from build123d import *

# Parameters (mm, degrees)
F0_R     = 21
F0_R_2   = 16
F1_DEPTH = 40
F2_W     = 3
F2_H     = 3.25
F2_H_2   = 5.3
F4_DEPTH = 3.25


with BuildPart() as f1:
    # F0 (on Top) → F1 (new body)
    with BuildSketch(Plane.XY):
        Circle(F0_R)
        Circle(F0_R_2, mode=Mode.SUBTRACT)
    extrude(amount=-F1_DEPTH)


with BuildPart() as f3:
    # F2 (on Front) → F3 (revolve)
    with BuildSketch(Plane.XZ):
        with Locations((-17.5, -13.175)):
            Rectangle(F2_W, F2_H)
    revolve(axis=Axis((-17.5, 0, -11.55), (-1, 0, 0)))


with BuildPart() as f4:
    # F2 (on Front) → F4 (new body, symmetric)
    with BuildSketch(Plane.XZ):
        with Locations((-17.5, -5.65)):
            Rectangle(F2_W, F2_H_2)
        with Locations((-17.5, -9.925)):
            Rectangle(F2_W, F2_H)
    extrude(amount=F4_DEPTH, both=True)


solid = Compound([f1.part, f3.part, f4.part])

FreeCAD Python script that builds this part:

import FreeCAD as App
import Part
import Sketcher
from FreeCAD import Vector
Q = App.Units.Quantity


def add_polygon(sketch, points):
    """Adds a closed chain of lines whose ends are joined by coincident constraints."""
    first, n = sketch.GeometryCount, len(points)
    for a, b in zip(points, points[1:] + points[:1]):
        sketch.addGeometry(Part.LineSegment(App.Vector(*a, 0), App.Vector(*b, 0)), False)
    for i in range(n):
        sketch.addConstraint(Sketcher.Constraint("Coincident", first + i, 2, first + (i + 1) % n, 1))

doc = App.newDocument("Part")
body = doc.addObject("PartDesign::Body", "Body")

# Sketch on XY plane
sketch1 = doc.addObject("Sketcher::SketchObject", "Sketch")
body.addObject(sketch1)
sketch1.AttachmentSupport = (doc.XY_Plane, [""])
sketch1.MapMode = "FlatFace"
sketch1.addGeometry([
    Part.Circle(Vector(0, 0, 0), Vector(0, 0, 1), 21),
    Part.Circle(Vector(0, 0, 0), Vector(0, 0, 1), 16),
], False)
sketch1.addConstraint([
    Sketcher.Constraint("Coincident", 0, 3, -1, 1),
    Sketcher.Constraint("Coincident", 1, 3, -1, 1),
    Sketcher.Constraint("Diameter", 0, Q("42 mm")),
    Sketcher.Constraint("Diameter", 1, Q("32 mm")),
])
pad1 = doc.addObject("PartDesign::Pad", "Pad")
body.addObject(pad1)
pad1.Profile = sketch1
pad1.Length = 40
pad1.Reversed = True
body2 = doc.addObject("PartDesign::Body", "Body001")

# Sketch on XZ plane
sketch2 = doc.addObject("Sketcher::SketchObject", "Sketch001")
body2.addObject(sketch2)
sketch2.AttachmentSupport = (doc.getObject("XZ_Plane001"), [""])
sketch2.MapMode = "FlatFace"
add_polygon(sketch2, [(-19, -11.6), (-19, -14.8), (-16, -14.8), (-16, -11.6)])  # lines 0-3
sketch2.addGeometry(Part.LineSegment(Vector(-16, -11.6, 0), Vector(-19, -11.6, 0)), True)  # axis
sketch2.addConstraint([
    Sketcher.Constraint("Vertical", 0),
    Sketcher.Constraint("Horizontal", 1),
    Sketcher.Constraint("Vertical", 2),
    Sketcher.Constraint("Horizontal", 3),
    Sketcher.Constraint("Horizontal", 4),
    Sketcher.Constraint("Coincident", 4, 1, 2, 2),
    Sketcher.Constraint("Vertical", 0, 2, 4, 2),
    Sketcher.Constraint("DistanceX", 1, 1, 1, 2, Q("3 mm")),
    Sketcher.Constraint("DistanceX", 0, 2, -1, 1, Q("19 mm")),
    Sketcher.Constraint("DistanceY", 0, 2, 0, 1, Q("3.25 mm")),
    Sketcher.Constraint("DistanceY", 0, 2, -1, 1, Q("14.8 mm")),
])
revolution = doc.addObject("PartDesign::Revolution", "Revolution")
body2.addObject(revolution)
revolution.Profile = sketch2
revolution.ReferenceAxis = (sketch2, ["Axis0"])
revolution.Angle = 360
body3 = doc.addObject("PartDesign::Body", "Body002")

# Sketch on XZ plane
sketch3 = doc.addObject("Sketcher::SketchObject", "Sketch002")
body3.addObject(sketch3)
sketch3.AttachmentSupport = (doc.getObject("XZ_Plane002"), [""])
sketch3.MapMode = "FlatFace"
add_polygon(sketch3, [(-19, -3), (-19, -11.6), (-16, -11.6), (-16, -3)])  # lines 0-3
sketch3.addConstraint([
    Sketcher.Constraint("Vertical", 0),
    Sketcher.Constraint("Horizontal", 1),
    Sketcher.Constraint("Vertical", 2),
    Sketcher.Constraint("Horizontal", 3),
    Sketcher.Constraint("DistanceX", 1, 1, 1, 2, Q("3 mm")),
    Sketcher.Constraint("DistanceX", 0, 2, -1, 1, Q("19 mm")),
    Sketcher.Constraint("DistanceY", 2, 2, -1, 1, Q("3 mm")),
    Sketcher.Constraint("DistanceY", 0, 2, 0, 1, Q("8.55 mm")),
])
pad2 = doc.addObject("PartDesign::Pad", "Pad001")
body3.addObject(pad2)
pad2.Profile = sketch3
pad2.Length = 6.5
pad2.Midplane = True

doc.recompute()
